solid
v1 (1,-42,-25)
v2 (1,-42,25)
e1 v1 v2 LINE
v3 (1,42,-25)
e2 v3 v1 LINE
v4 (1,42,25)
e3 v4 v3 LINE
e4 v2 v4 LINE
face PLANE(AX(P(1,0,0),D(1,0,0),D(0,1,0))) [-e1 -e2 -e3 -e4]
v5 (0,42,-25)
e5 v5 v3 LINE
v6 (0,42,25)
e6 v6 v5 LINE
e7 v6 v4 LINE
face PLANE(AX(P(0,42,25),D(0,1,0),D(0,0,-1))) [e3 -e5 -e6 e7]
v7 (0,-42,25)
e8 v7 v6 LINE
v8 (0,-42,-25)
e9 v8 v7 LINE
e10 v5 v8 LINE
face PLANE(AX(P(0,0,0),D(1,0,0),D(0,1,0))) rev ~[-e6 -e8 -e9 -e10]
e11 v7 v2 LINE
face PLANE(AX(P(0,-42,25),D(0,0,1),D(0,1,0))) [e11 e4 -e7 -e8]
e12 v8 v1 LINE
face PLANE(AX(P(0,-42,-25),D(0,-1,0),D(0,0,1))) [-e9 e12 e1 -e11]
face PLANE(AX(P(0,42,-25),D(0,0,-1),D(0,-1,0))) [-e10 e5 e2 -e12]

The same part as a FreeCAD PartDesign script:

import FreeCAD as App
import Part
import Sketcher

V = App.Vector
Q = App.Units.Quantity


def add_polygon(sketch, points):
    """Adds a closed chain of lines whose ends are joined by coincident constraints."""
    first, n = sketch.GeometryCount, len(points)
    for a, b in zip(points, points[1:] + points[:1]):
        sketch.addGeometry(Part.LineSegment(App.Vector(*a, 0), App.Vector(*b, 0)), False)
    for i in range(n):
        sketch.addConstraint(Sketcher.Constraint("Coincident", first + i, 2, first + (i + 1) % n, 1))

doc = App.newDocument("Part")
body = doc.addObject("PartDesign::Body", "Body")

# Sketch on YZ plane
sketch1 = body.newObject("Sketcher::SketchObject", "Sketch")
sketch1.AttachmentSupport = (doc.getObject("YZ_Plane"), [""])
sketch1.MapMode = "FlatFace"
add_polygon(sketch1, [(42, 25), (-42, 25), (-42, -25), (42, -25)])  # lines 0-3
sketch1.addConstraint([
    Sketcher.Constraint("Horizontal", 0),
    Sketcher.Constraint("Vertical", 1),
    Sketcher.Constraint("Horizontal", 2),
    Sketcher.Constraint("Vertical", 3),
    Sketcher.Constraint("Symmetric", 0, 2, 2, 2, -1, 1),
    Sketcher.Constraint("DistanceX", 0, 2, 0, 1, Q("84 mm")),
    Sketcher.Constraint("DistanceY", 1, 2, 1, 1, Q("50 mm")),
])
pad1 = body.newObject("PartDesign::Pad", "Pad")
pad1.Profile = sketch1
pad1.Length = 1

doc.recompute()
